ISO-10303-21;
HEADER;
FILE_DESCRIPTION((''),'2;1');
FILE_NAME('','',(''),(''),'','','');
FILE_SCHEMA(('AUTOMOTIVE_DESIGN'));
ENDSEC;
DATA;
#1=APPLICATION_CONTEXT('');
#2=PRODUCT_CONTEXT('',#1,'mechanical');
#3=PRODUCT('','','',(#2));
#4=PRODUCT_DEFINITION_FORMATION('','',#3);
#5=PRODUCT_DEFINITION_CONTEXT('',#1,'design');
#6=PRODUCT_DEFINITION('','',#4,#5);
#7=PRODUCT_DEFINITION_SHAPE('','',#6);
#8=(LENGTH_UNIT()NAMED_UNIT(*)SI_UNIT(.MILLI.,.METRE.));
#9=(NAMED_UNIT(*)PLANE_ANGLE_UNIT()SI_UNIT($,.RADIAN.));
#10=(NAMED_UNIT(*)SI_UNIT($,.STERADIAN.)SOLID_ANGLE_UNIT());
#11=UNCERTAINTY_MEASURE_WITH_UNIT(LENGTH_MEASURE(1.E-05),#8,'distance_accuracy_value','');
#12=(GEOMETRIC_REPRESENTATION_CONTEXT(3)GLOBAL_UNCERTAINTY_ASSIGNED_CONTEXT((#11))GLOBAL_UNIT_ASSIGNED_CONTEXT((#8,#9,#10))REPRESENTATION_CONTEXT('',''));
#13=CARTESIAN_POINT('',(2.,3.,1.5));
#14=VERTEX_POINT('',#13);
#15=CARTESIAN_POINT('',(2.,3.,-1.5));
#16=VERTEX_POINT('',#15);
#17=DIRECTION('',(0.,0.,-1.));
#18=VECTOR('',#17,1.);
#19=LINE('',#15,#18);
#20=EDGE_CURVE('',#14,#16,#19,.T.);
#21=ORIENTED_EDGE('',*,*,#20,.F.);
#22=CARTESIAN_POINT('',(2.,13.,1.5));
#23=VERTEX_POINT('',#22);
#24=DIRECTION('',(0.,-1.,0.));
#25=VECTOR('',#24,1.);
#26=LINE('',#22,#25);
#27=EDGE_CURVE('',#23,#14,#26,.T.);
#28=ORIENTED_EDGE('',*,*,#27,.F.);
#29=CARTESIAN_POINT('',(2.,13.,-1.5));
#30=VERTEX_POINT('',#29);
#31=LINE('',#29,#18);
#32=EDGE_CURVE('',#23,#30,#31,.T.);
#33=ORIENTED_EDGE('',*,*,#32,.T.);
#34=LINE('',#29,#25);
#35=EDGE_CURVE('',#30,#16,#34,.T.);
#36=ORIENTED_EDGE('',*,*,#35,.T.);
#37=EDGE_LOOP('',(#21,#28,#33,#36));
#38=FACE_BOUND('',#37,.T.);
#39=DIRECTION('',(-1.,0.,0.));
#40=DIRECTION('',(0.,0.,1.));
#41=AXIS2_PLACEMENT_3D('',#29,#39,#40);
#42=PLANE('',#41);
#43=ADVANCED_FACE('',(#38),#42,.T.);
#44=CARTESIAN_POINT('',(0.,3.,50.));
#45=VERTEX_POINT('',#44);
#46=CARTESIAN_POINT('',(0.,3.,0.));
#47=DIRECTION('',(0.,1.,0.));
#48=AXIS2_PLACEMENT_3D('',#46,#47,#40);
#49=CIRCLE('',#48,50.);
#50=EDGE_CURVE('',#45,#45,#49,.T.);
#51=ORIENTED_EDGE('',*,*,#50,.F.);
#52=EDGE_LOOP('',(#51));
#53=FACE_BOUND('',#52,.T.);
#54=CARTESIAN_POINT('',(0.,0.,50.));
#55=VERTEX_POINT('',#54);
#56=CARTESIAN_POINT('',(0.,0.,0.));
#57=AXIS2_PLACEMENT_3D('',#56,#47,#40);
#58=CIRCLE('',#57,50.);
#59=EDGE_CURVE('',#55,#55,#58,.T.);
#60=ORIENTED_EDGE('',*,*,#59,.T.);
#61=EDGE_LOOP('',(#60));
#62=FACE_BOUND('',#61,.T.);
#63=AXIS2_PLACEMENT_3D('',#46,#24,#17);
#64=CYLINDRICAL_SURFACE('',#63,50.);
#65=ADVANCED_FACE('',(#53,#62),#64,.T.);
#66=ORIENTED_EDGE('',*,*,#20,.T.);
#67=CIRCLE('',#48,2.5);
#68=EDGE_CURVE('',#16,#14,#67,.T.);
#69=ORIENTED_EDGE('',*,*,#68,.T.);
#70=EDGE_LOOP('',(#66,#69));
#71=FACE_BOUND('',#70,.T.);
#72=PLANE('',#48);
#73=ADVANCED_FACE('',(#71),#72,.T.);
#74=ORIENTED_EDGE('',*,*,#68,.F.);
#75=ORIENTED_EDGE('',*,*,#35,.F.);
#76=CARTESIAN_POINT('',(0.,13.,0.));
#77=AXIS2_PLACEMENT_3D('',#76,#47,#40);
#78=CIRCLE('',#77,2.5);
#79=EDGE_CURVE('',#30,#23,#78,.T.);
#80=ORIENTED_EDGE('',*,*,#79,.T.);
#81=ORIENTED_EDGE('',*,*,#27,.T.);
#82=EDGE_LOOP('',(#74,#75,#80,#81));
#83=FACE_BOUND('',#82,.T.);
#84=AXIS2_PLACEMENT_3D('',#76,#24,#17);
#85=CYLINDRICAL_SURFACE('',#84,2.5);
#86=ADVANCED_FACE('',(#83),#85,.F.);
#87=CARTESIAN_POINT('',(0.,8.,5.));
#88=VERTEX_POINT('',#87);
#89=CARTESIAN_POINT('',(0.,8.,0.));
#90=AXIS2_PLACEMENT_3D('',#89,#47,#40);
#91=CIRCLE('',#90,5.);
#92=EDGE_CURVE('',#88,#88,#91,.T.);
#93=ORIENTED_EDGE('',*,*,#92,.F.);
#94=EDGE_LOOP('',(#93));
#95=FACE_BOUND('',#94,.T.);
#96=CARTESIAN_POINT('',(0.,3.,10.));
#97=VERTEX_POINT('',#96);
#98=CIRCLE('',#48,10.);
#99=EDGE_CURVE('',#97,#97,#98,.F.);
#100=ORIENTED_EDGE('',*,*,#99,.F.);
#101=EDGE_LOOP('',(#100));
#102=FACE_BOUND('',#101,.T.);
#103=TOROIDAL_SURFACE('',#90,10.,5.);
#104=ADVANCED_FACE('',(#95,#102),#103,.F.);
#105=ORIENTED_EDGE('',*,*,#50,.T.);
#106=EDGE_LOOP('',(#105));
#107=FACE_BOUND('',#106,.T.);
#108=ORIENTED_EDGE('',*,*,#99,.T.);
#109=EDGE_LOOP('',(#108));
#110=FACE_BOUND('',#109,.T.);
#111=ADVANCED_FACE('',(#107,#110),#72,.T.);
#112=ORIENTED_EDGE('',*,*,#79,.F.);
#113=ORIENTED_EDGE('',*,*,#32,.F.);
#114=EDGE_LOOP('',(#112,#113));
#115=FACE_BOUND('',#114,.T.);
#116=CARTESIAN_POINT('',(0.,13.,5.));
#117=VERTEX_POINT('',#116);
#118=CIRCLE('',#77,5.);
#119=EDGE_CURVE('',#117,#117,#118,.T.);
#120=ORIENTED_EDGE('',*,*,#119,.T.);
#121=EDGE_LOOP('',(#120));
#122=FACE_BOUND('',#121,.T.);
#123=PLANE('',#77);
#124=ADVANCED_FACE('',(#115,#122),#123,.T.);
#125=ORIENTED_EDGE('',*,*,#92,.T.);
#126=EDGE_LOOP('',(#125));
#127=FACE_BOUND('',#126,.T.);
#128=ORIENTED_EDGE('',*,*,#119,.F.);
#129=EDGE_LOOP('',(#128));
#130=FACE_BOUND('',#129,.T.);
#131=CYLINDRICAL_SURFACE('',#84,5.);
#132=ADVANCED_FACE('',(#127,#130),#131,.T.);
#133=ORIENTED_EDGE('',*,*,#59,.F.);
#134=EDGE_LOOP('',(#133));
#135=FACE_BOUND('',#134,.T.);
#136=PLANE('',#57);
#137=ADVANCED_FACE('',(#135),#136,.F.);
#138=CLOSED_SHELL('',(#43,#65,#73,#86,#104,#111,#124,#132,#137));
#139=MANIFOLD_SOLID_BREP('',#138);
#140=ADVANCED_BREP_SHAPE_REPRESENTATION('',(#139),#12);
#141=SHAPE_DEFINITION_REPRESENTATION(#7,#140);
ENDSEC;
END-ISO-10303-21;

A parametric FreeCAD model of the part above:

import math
import FreeCAD as App
import Part
import Sketcher

V = App.Vector


def edges_at(feature, points):
    """Names of the edges that pass closest to the given points."""
    edges = feature.Shape.Edges
    near = lambda p: min(range(len(edges)), key=lambda i: edges[i].distToShape(Part.Vertex(*p))[0])
    return sorted({f"Edge{near(p) + 1}" for p in points})

doc = App.newDocument("Part")
body = doc.addObject("PartDesign::Body", "Body")

sketch1 = doc.addObject("Sketcher::SketchObject", "Sketch")
body.addObject(sketch1)
sketch1.AttachmentSupport = (doc.XZ_Plane, [""])
sketch1.MapMode = "FlatFace"
sketch1.addGeometry(Part.Circle(V(0, 0, 0), V(0, 0, 1), 50), False)
sketch1.addConstraint(Sketcher.Constraint("Coincident", 0, 3, -1, 1))
sketch1.addConstraint(Sketcher.Constraint("Diameter", 0, 100.0))
pad1 = doc.addObject("PartDesign::Pad", "Pad")
body.addObject(pad1)
pad1.Profile = sketch1
pad1.Length = 3
pad1.Reversed = True

sketch2 = doc.addObject("Sketcher::SketchObject", "Sketch001")
body.addObject(sketch2)
sketch2.AttachmentSupport = (doc.XZ_Plane, [""])
sketch2.MapMode = "FlatFace"
sketch2.AttachmentOffset = App.Placement(V(0, 0, -3), App.Rotation())
sketch2.addGeometry(Part.Circle(V(0, 0, 0), V(0, 0, 1), 5), False)
sketch2.addGeometry(Part.ArcOfCircle(Part.Circle(V(0, 0, 0), V(0, 0, 1), 2.5), math.radians(37), math.radians(323)), False)
sketch2.addGeometry(Part.LineSegment(V(2, -1.5, 0), V(2, 1.5, 0)), False)
sketch2.addConstraint(Sketcher.Constraint("Coincident", 1, 1, 2, 2))
sketch2.addConstraint(Sketcher.Constraint("Coincident", 2, 1, 1, 2))
sketch2.addConstraint(Sketcher.Constraint("Vertical", 2))
sketch2.addConstraint(Sketcher.Constraint("Coincident", 0, 3, -1, 1))
sketch2.addConstraint(Sketcher.Constraint("Coincident", 1, 3, -1, 1))
sketch2.addConstraint(Sketcher.Constraint("Diameter", 0, 10.0))
sketch2.addConstraint(Sketcher.Constraint("Radius", 1, 2.5))
sketch2.addConstraint(Sketcher.Constraint("DistanceY", 2, 1, 2, 2, 3.0))
pad2 = doc.addObject("PartDesign::Pad", "Pad001")
body.addObject(pad2)
pad2.Profile = sketch2
pad2.Length = 10
pad2.Reversed = True
doc.recompute()

fillet = doc.addObject("PartDesign::Fillet", "Fillet")
body.addObject(fillet)
fillet.Base = (pad2, edges_at(pad2, [(0, 3, -5)]))
fillet.Radius = 5

doc.recompute()
